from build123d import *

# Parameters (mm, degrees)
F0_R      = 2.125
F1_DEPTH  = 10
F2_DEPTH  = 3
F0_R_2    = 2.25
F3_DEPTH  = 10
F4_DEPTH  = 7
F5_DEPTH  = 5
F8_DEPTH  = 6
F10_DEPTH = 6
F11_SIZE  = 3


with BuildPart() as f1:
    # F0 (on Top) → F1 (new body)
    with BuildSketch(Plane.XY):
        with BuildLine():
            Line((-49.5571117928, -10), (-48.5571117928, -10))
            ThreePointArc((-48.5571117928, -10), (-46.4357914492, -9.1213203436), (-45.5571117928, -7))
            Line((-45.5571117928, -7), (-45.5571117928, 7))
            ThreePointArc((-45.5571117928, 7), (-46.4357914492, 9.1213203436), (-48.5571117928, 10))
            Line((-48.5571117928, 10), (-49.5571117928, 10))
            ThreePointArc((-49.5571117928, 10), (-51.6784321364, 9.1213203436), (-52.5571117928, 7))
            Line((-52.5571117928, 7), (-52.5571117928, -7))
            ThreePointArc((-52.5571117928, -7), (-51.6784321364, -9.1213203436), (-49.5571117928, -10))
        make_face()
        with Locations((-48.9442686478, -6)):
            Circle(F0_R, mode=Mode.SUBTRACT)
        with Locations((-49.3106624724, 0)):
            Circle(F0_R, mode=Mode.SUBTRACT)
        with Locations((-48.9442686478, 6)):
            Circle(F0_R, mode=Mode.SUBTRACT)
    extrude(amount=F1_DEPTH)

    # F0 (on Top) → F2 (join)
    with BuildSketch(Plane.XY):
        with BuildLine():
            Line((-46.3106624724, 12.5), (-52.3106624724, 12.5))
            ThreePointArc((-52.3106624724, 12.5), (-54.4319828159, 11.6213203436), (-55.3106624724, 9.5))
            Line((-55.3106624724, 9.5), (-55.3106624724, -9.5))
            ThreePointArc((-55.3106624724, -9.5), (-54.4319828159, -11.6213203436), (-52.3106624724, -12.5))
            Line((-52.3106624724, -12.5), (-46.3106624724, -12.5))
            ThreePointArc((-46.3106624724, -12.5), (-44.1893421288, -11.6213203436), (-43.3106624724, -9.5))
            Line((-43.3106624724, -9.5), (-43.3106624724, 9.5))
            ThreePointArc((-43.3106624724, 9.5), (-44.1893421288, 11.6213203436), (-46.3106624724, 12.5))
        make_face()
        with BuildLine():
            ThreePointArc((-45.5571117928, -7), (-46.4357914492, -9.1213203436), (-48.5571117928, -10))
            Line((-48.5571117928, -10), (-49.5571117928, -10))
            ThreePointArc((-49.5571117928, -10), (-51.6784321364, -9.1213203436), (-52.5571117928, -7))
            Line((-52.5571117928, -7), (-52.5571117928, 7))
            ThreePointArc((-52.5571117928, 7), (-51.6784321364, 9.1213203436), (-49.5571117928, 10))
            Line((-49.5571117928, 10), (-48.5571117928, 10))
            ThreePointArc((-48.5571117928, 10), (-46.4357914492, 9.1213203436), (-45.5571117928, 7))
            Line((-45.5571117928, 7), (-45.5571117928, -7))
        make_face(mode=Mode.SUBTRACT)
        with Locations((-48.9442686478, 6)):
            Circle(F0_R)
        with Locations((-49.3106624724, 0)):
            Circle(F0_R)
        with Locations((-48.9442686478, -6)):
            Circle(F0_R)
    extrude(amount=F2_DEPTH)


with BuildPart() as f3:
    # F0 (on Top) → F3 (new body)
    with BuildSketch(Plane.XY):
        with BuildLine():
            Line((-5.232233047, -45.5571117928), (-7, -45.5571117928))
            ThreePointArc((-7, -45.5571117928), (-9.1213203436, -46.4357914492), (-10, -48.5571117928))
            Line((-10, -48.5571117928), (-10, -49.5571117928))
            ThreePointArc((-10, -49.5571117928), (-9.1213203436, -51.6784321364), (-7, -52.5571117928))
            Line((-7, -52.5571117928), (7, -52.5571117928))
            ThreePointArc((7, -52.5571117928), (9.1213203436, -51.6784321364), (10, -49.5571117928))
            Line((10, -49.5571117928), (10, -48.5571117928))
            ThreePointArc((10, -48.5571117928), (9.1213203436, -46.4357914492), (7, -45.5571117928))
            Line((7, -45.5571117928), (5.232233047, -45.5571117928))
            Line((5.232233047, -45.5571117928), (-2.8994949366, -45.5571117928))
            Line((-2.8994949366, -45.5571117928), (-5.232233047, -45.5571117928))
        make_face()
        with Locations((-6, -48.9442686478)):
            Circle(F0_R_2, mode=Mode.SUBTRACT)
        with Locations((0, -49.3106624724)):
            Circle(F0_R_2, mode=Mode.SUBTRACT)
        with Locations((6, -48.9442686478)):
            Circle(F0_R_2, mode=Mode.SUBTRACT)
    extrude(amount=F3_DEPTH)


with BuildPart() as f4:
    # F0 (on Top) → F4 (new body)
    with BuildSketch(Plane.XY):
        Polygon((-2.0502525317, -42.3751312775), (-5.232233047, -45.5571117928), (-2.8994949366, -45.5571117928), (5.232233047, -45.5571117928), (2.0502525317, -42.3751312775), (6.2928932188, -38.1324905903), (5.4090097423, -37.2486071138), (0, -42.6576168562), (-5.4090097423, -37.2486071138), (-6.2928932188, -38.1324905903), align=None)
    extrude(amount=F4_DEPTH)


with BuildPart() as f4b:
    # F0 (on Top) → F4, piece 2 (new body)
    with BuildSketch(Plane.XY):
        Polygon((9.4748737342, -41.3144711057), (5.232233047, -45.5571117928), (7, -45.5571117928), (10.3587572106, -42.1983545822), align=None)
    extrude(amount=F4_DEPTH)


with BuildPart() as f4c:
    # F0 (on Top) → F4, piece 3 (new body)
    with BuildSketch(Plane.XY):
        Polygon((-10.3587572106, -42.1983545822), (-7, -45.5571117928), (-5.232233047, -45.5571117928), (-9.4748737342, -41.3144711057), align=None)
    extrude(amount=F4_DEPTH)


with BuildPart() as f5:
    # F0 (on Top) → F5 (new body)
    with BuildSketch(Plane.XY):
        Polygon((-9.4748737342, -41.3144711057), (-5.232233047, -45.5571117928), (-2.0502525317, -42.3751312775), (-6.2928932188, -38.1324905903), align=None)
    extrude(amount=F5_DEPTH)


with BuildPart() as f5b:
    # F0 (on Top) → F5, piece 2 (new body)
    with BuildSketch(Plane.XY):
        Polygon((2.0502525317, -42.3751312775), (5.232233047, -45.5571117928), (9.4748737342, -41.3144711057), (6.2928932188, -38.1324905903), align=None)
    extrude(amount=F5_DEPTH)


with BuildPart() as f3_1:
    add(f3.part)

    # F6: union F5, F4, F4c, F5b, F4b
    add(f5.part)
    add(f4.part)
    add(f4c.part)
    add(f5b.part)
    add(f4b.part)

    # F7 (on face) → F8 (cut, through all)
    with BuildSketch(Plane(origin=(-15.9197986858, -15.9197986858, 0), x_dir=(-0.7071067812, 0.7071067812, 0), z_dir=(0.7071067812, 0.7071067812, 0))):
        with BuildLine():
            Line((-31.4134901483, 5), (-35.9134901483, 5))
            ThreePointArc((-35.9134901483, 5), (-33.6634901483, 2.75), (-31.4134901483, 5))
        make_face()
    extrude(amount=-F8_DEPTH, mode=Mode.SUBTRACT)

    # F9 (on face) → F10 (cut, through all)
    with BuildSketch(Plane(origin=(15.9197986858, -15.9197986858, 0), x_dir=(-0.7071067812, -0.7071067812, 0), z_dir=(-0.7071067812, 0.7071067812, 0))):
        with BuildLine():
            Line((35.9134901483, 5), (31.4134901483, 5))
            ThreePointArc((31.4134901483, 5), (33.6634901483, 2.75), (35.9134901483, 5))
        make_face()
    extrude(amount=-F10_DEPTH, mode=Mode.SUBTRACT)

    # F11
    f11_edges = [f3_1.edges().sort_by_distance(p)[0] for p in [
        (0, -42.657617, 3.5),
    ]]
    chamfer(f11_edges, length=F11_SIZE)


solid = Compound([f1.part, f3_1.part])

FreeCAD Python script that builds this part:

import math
import FreeCAD as App
import Part
import Sketcher

V = App.Vector
Q = App.Units.Quantity


def edges_at(feature, points):
    """Names of the edges that pass closest to the given points."""
    edges = feature.Shape.Edges
    near = lambda p: min(range(len(edges)), key=lambda i: edges[i].distToShape(Part.Vertex(*p))[0])
    return sorted({f"Edge{near(p) + 1}" for p in points})


def add_polygon(sketch, points):
    """Adds a closed chain of lines whose ends are joined by coincident constraints."""
    first, n = sketch.GeometryCount, len(points)
    for a, b in zip(points, points[1:] + points[:1]):
        sketch.addGeometry(Part.LineSegment(App.Vector(*a, 0), App.Vector(*b, 0)), False)
    for i in range(n):
        sketch.addConstraint(Sketcher.Constraint("Coincident", first + i, 2, first + (i + 1) % n, 1))

doc = App.newDocument("Part")
body = doc.addObject("PartDesign::Body", "Body")

# Sketch on XY plane
sketch1 = doc.addObject("Sketcher::SketchObject", "Sketch")
body.addObject(sketch1)
sketch1.AttachmentSupport = (doc.XY_Plane, [""])
sketch1.MapMode = "FlatFace"
sketch1.addGeometry([
    Part.LineSegment(V(-49.6, -10, 0), V(-48.6, -10, 0)),  # 0
    Part.ArcOfCircle(Part.Circle(V(-48.6, -7, 0), V(0, 0, 1), 3), math.radians(-90), math.radians(0)),  # 1
    Part.LineSegment(V(-45.6, -7, 0), V(-45.6, 7, 0)),  # 2
    Part.ArcOfCircle(Part.Circle(V(-48.6, 7, 0), V(0, 0, 1), 3), math.radians(0), math.radians(90)),  # 3
    Part.LineSegment(V(-48.6, 10, 0), V(-49.6, 10, 0)),  # 4
    Part.ArcOfCircle(Part.Circle(V(-49.6, 7, 0), V(0, 0, 1), 3), math.radians(90), math.radians(180)),  # 5
    Part.LineSegment(V(-52.6, 7, 0), V(-52.6, -7, 0)),  # 6
    Part.ArcOfCircle(Part.Circle(V(-49.6, -7, 0), V(0, 0, 1), 3), math.radians(180), math.radians(270)),  # 7
    Part.Circle(V(-48.9, -6, 0), V(0, 0, 1), 2.1),  # 8
    Part.Circle(V(-49.3, 0, 0), V(0, 0, 1), 2.1),  # 9
    Part.Circle(V(-48.9, 6, 0), V(0, 0, 1), 2.1),  # 10
], False)
sketch1.addConstraint([
    Sketcher.Constraint("Tangent", 0, 2, 1, 1),
    Sketcher.Constraint("Tangent", 1, 2, 2, 1),
    Sketcher.Constraint("Tangent", 2, 2, 3, 1),
    Sketcher.Constraint("Tangent", 3, 2, 4, 1),
    Sketcher.Constraint("Tangent", 4, 2, 5, 1),
    Sketcher.Constraint("Tangent", 5, 2, 6, 1),
    Sketcher.Constraint("Tangent", 6, 2, 7, 1),
    Sketcher.Constraint("Tangent", 7, 2, 0, 1),
    Sketcher.Constraint("Horizontal", 0),
    Sketcher.Constraint("Vertical", 2),
    Sketcher.Constraint("Horizontal", 4),
    Sketcher.Constraint("Vertical", 6),
    Sketcher.Constraint("Equal", 1, 3),
    Sketcher.Constraint("Equal", 3, 5),
    Sketcher.Constraint("Equal", 5, 7),
    Sketcher.Constraint("Equal", 8, 9),
    Sketcher.Constraint("Equal", 9, 10),
    Sketcher.Constraint("Symmetric", 8, 3, 10, 3, -1),
    Sketcher.Constraint("PointOnObject", 9, 3, -1),
    Sketcher.Constraint("Radius", 1, Q("3 mm")),
    Sketcher.Constraint("Diameter", 8, Q("4.25 mm")),
    Sketcher.Constraint("DistanceX", 0, 1, 0, 2, Q("1 mm")),
    Sketcher.Constraint("DistanceY", 2, 1, 2, 2, Q("14 mm")),
    Sketcher.Constraint("DistanceY", 1, 3, -1, 1, Q("7 mm")),
    Sketcher.Constraint("DistanceY", 8, 3, -1, 1, Q("6 mm")),
    Sketcher.Constraint("DistanceX", 1, 3, -1, 1, Q("48.557112 mm")),
    Sketcher.Constraint("DistanceX", 8, 3, -1, 1, Q("48.944269 mm")),
    Sketcher.Constraint("DistanceX", 5, 3, 9, 3, Q("0.246449 mm")),
])
pad1 = doc.addObject("PartDesign::Pad", "Pad")
body.addObject(pad1)
pad1.Profile = sketch1
pad1.Length = 10

# Sketch on XY plane
sketch2 = doc.addObject("Sketcher::SketchObject", "Sketch001")
body.addObject(sketch2)
sketch2.AttachmentSupport = (doc.XY_Plane, [""])
sketch2.MapMode = "FlatFace"
sketch2.addGeometry([
    Part.LineSegment(V(-46.3, 12.5, 0), V(-52.3, 12.5, 0)),  # 0
    Part.ArcOfCircle(Part.Circle(V(-52.3, 9.5, 0), V(0, 0, 1), 3), math.radians(90), math.radians(180)),  # 1
    Part.LineSegment(V(-55.3, 9.5, 0), V(-55.3, -9.5, 0)),  # 2
    Part.ArcOfCircle(Part.Circle(V(-52.3, -9.5, 0), V(0, 0, 1), 3), math.radians(180), math.radians(270)),  # 3
    Part.LineSegment(V(-52.3, -12.5, 0), V(-46.3, -12.5, 0)),  # 4
    Part.ArcOfCircle(Part.Circle(V(-46.3, -9.5, 0), V(0, 0, 1), 3), math.radians(-90), math.radians(0)),  # 5
    Part.LineSegment(V(-43.3, -9.5, 0), V(-43.3, 9.5, 0)),  # 6
    Part.ArcOfCircle(Part.Circle(V(-46.3, 9.5, 0), V(0, 0, 1), 3), math.radians(0), math.radians(90)),  # 7
    Part.LineSegment(V(-45.6, 7, 0), V(-45.6, -7, 0)),  # 8
    Part.ArcOfCircle(Part.Circle(V(-48.6, -7, 0), V(0, 0, 1), 3), math.radians(-90), math.radians(0)),  # 9
    Part.LineSegment(V(-48.6, -10, 0), V(-49.6, -10, 0)),  # 10
    Part.ArcOfCircle(Part.Circle(V(-49.6, -7, 0), V(0, 0, 1), 3), math.radians(180), math.radians(270)),  # 11
    Part.LineSegment(V(-52.6, -7, 0), V(-52.6, 7, 0)),  # 12
    Part.ArcOfCircle(Part.Circle(V(-49.6, 7, 0), V(0, 0, 1), 3), math.radians(90), math.radians(180)),  # 13
    Part.LineSegment(V(-49.6, 10, 0), V(-48.6, 10, 0)),  # 14
    Part.ArcOfCircle(Part.Circle(V(-48.6, 7, 0), V(0, 0, 1), 3), math.radians(0), math.radians(90)),  # 15
    Part.Circle(V(-48.9, 6, 0), V(0, 0, 1), 2.1),  # 16
    Part.Circle(V(-49.3, 0, 0), V(0, 0, 1), 2.1),  # 17
    Part.Circle(V(-48.9, -6, 0), V(0, 0, 1), 2.1),  # 18
], False)
sketch2.addConstraint([
    Sketcher.Constraint("Tangent", 0, 2, 1, 1),
    Sketcher.Constraint("Tangent", 1, 2, 2, 1),
    Sketcher.Constraint("Tangent", 2, 2, 3, 1),
    Sketcher.Constraint("Tangent", 3, 2, 4, 1),
    Sketcher.Constraint("Tangent", 4, 2, 5, 1),
    Sketcher.Constraint("Tangent", 5, 2, 6, 1),
    Sketcher.Constraint("Tangent", 6, 2, 7, 1),
    Sketcher.Constraint("Tangent", 7, 2, 0, 1),
    Sketcher.Constraint("Tangent", 8, 2, 9, 2),
    Sketcher.Constraint("Tangent", 9, 1, 10, 1),
    Sketcher.Constraint("Tangent", 10, 2, 11, 2),
    Sketcher.Constraint("Tangent", 11, 1, 12, 1),
    Sketcher.Constraint("Tangent", 12, 2, 13, 2),
    Sketcher.Constraint("Tangent", 13, 1, 14, 1),
    Sketcher.Constraint("Tangent", 14, 2, 15, 2),
    Sketcher.Constraint("Tangent", 15, 1, 8, 1),
    Sketcher.Constraint("Horizontal", 0),
    Sketcher.Constraint("Vertical", 2),
    Sketcher.Constraint("Horizontal", 4),
    Sketcher.Constraint("Vertical", 6),
    Sketcher.Constraint("Vertical", 8),
    Sketcher.Constraint("Horizontal", 10),
    Sketcher.Constraint("Vertical", 12),
    Sketcher.Constraint("Horizontal", 14),
    Sketcher.Constraint("Equal", 1, 3),
    Sketcher.Constraint("Equal", 3, 5),
    Sketcher.Constraint("Equal", 5, 7),
    Sketcher.Constraint("Equal", 7, 9),
    Sketcher.Constraint("Equal", 9, 11),
    Sketcher.Constraint("Equal", 11, 13),
    Sketcher.Constraint("Equal", 13, 15),
    Sketcher.Constraint("Equal", 16, 17),
    Sketcher.Constraint("Equal", 17, 18),
    Sketcher.Constraint("Symmetric", 16, 3, 18, 3, -1),
    Sketcher.Constraint("PointOnObject", 17, 3, -1),
    Sketcher.Constraint("Radius", 1, Q("3 mm")),
    Sketcher.Constraint("Diameter", 16, Q("4.25 mm")),
    Sketcher.Constraint("DistanceX", 0, 2, 0, 1, Q("6 mm")),
    Sketcher.Constraint("DistanceX", 10, 2, 10, 1, Q("1 mm")),
    Sketcher.Constraint("DistanceY", 2, 2, 2, 1, Q("19 mm")),
    Sketcher.Constraint("DistanceY", 8, 2, 8, 1, Q("14 mm")),
    Sketcher.Constraint("DistanceY", 9, 3, -1, 1, Q("7 mm")),
    Sketcher.Constraint("DistanceY", -1, 1, 16, 3, Q("6 mm")),
    Sketcher.Constraint("DistanceY", -1, 1, 1, 3, Q("9.5 mm")),
    Sketcher.Constraint("DistanceX", 9, 3, -1, 1, Q("48.557112 mm")),
    Sketcher.Constraint("DistanceX", 16, 3, -1, 1, Q("48.944269 mm")),
    Sketcher.Constraint("DistanceX", 9, 3, 5, 3, Q("2.246449 mm")),
    Sketcher.Constraint("DistanceX", 11, 3, 17, 3, Q("0.246449 mm")),
])
pad2 = doc.addObject("PartDesign::Pad", "Pad001")
body.addObject(pad2)
pad2.Profile = sketch2
pad2.Length = 3
body2 = doc.addObject("PartDesign::Body", "Body001")

# Sketch on XY plane
sketch3 = doc.addObject("Sketcher::SketchObject", "Sketch002")
body2.addObject(sketch3)
sketch3.AttachmentSupport = (doc.getObject("XY_Plane001"), [""])
sketch3.MapMode = "FlatFace"
sketch3.addGeometry([
    Part.ArcOfCircle(Part.Circle(V(-7, -48.6, 0), V(0, 0, 1), 3), math.radians(90), math.radians(180)),  # 0
    Part.LineSegment(V(-10, -48.6, 0), V(-10, -49.6, 0)),  # 1
    Part.ArcOfCircle(Part.Circle(V(-7, -49.6, 0), V(0, 0, 1), 3), math.radians(180), math.radians(270)),  # 2
    Part.LineSegment(V(-7, -52.6, 0), V(7, -52.6, 0)),  # 3
    Part.ArcOfCircle(Part.Circle(V(7, -49.6, 0), V(0, 0, 1), 3), math.radians(-90), math.radians(0)),  # 4
    Part.LineSegment(V(10, -49.6, 0), V(10, -48.6, 0)),  # 5
    Part.ArcOfCircle(Part.Circle(V(7, -48.6, 0), V(0, 0, 1), 3), math.radians(0), math.radians(90)),  # 6
    Part.LineSegment(V(7, -45.6, 0), V(-7, -45.6, 0)),  # 7
    Part.Circle(V(0, -49.3, 0), V(0, 0, 1), 2.2),  # 8
    Part.Circle(V(-6, -48.9, 0), V(0, 0, 1), 2.2),  # 9
    Part.Circle(V(6, -48.9, 0), V(0, 0, 1), 2.2),  # 10
], False)
sketch3.addConstraint([
    Sketcher.Constraint("Tangent", 0, 2, 1, 1),
    Sketcher.Constraint("Tangent", 1, 2, 2, 1),
    Sketcher.Constraint("Tangent", 2, 2, 3, 1),
    Sketcher.Constraint("Tangent", 3, 2, 4, 1),
    Sketcher.Constraint("Tangent", 4, 2, 5, 1),
    Sketcher.Constraint("Tangent", 5, 2, 6, 1),
    Sketcher.Constraint("Tangent", 6, 2, 7, 1),
    Sketcher.Constraint("Tangent", 7, 2, 0, 1),
    Sketcher.Constraint("Vertical", 1),
    Sketcher.Constraint("Horizontal", 3),
    Sketcher.Constraint("Vertical", 5),
    Sketcher.Constraint("Horizontal", 7),
    Sketcher.Constraint("Equal", 0, 2),
    Sketcher.Constraint("Equal", 2, 4),
    Sketcher.Constraint("Equal", 4, 6),
    Sketcher.Constraint("Equal", 8, 9),
    Sketcher.Constraint("Equal", 9, 10),
    Sketcher.Constraint("Symmetric", 9, 3, 10, 3, -2),
    Sketcher.Constraint("PointOnObject", 8, 3, -2),
    Sketcher.Constraint("Radius", 0, Q("3 mm")),
    Sketcher.Constraint("Diameter", 8, Q("4.5 mm")),
    Sketcher.Constraint("DistanceX", 3, 1, 3, 2, Q("14 mm")),
    Sketcher.Constraint("DistanceY", 1, 2, 1, 1, Q("1 mm")),
    Sketcher.Constraint("DistanceX", 0, 3, -1, 1, Q("7 mm")),
    Sketcher.Constraint("DistanceX", 9, 3, -1, 1, Q("6 mm")),
    Sketcher.Constraint("DistanceY", 0, 3, -1, 1, Q("48.557112 mm")),
    Sketcher.Constraint("DistanceY", 9, 3, -1, 1, Q("48.944269 mm")),
    Sketcher.Constraint("DistanceY", 2, 3, 8, 3, Q("0.246449 mm")),
])
pad3 = doc.addObject("PartDesign::Pad", "Pad002")
body2.addObject(pad3)
pad3.Profile = sketch3
pad3.Length = 10
body3 = doc.addObject("PartDesign::Body", "Body002")

# Sketch on XY plane
sketch4 = doc.addObject("Sketcher::SketchObject", "Sketch003")
body3.addObject(sketch4)
sketch4.AttachmentSupport = (doc.getObject("XY_Plane002"), [""])
sketch4.MapMode = "FlatFace"
add_polygon(sketch4, [(-2.1, -42.4), (-5.2, -45.6), (5.2, -45.6), (2.1, -42.4), (6.3, -38.1), (5.4, -37.2), (0, -42.7), (-5.4, -37.2), (-6.3, -38.1)])  # lines 0-8
sketch4.addConstraint([
    Sketcher.Constraint("Horizontal", 1),
    Sketcher.Constraint("Symmetric", 4, 2, 6, 2, -2),
    Sketcher.Constraint("Symmetric", 3, 2, 7, 2, -2),
    Sketcher.Constraint("Symmetric", 2, 2, 8, 2, -2),
    Sketcher.Constraint("PointOnObject", 5, 2, -2),
    Sketcher.Constraint("Perpendicular", 0, 2),
    Sketcher.Constraint("Perpendicular", 2, 3),
    Sketcher.Constraint("Perpendicular", 3, 4),
    Sketcher.Constraint("Perpendicular", 4, 5),
    Sketcher.Constraint("Perpendicular", 5, 6),
    Sketcher.Constraint("Distance", 3, Q("6 mm")),
    Sketcher.Constraint("Distance", 0, Q("4.5 mm")),
    Sketcher.Constraint("Distance", 4, Q("1.25 mm")),
    Sketcher.Constraint("DistanceX", 1, 1, 1, 2, Q("10.464466 mm")),
    Sketcher.Constraint("DistanceY", 0, 2, -1, 1, Q("45.557112 mm")),
])
pad4 = doc.addObject("PartDesign::Pad", "Pad003")
body3.addObject(pad4)
pad4.Profile = sketch4
pad4.Length = 7
body4 = doc.addObject("PartDesign::Body", "Body003")

# Sketch on XY plane
sketch5 = doc.addObject("Sketcher::SketchObject", "Sketch004")
body4.addObject(sketch5)
sketch5.AttachmentSupport = (doc.getObject("XY_Plane003"), [""])
sketch5.MapMode = "FlatFace"
add_polygon(sketch5, [(9.5, -41.3), (5.2, -45.6), (7, -45.6), (10.4, -42.2)])  # lines 0-3
sketch5.addConstraint([
    Sketcher.Constraint("Horizontal", 1),
    Sketcher.Constraint("Parallel", 0, 2),
    Sketcher.Constraint("Perpendicular", 2, 3),
    Sketcher.Constraint("Angle", 0, Q("-135 deg")),
    Sketcher.Constraint("Distance", 0, Q("6 mm")),
    Sketcher.Constraint("DistanceX", -1, 1, 1, 2, Q("7 mm")),
    Sketcher.Constraint("Distance", 2, Q("4.75 mm")),
    Sketcher.Constraint("DistanceY", 0, 2, -1, 1, Q("45.557112 mm")),
])
pad5 = doc.addObject("PartDesign::Pad", "Pad004")
body4.addObject(pad5)
pad5.Profile = sketch5
pad5.Length = 7
body5 = doc.addObject("PartDesign::Body", "Body004")

# Sketch on XY plane
sketch6 = doc.addObject("Sketcher::SketchObject", "Sketch005")
body5.addObject(sketch6)
sketch6.AttachmentSupport = (doc.getObject("XY_Plane004"), [""])
sketch6.MapMode = "FlatFace"
add_polygon(sketch6, [(-10.4, -42.2), (-7, -45.6), (-5.2, -45.6), (-9.5, -41.3)])  # lines 0-3
sketch6.addConstraint([
    Sketcher.Constraint("Horizontal", 1),
    Sketcher.Constraint("Parallel", 0, 2),
    Sketcher.Constraint("Perpendicular", 2, 3),
    Sketcher.Constraint("Angle", 0, Q("-45 deg")),
    Sketcher.Constraint("Distance", 2, Q("6 mm")),
    Sketcher.Constraint("DistanceX", 0, 2, -1, 1, Q("7 mm")),
    Sketcher.Constraint("Distance", 0, Q("4.75 mm")),
    Sketcher.Constraint("DistanceY", 0, 2, -1, 1, Q("45.557112 mm")),
])
pad6 = doc.addObject("PartDesign::Pad", "Pad005")
body5.addObject(pad6)
pad6.Profile = sketch6
pad6.Length = 7
body6 = doc.addObject("PartDesign::Body", "Body005")

# Sketch on XY plane
sketch7 = doc.addObject("Sketcher::SketchObject", "Sketch006")
body6.addObject(sketch7)
sketch7.AttachmentSupport = (doc.getObject("XY_Plane005"), [""])
sketch7.MapMode = "FlatFace"
add_polygon(sketch7, [(-9.5, -41.3), (-5.2, -45.6), (-2.1, -42.4), (-6.3, -38.1)])  # lines 0-3
sketch7.addConstraint([
    Sketcher.Constraint("Perpendicular", 0, 1),
    Sketcher.Constraint("Perpendicular", 1, 2),
    Sketcher.Constraint("Perpendicular", 2, 3),
    Sketcher.Constraint("Angle", 0, Q("-45 deg")),
    Sketcher.Constraint("Distance", 0, Q("6 mm")),
    Sketcher.Constraint("Distance", 1, Q("4.5 mm")),
    Sketcher.Constraint("DistanceY", 0, 2, -1, 1, Q("45.557112 mm")),
    Sketcher.Constraint("DistanceX", 0, 2, -1, 1, Q("5.232233 mm")),
])
pad7 = doc.addObject("PartDesign::Pad", "Pad006")
body6.addObject(pad7)
pad7.Profile = sketch7
pad7.Length = 5
body7 = doc.addObject("PartDesign::Body", "Body006")

# Sketch on XY plane
sketch8 = doc.addObject("Sketcher::SketchObject", "Sketch007")
body7.addObject(sketch8)
sketch8.AttachmentSupport = (doc.getObject("XY_Plane006"), [""])
sketch8.MapMode = "FlatFace"
add_polygon(sketch8, [(2.1, -42.4), (5.2, -45.6), (9.5, -41.3), (6.3, -38.1)])  # lines 0-3
sketch8.addConstraint([
    Sketcher.Constraint("Perpendicular", 0, 1),
    Sketcher.Constraint("Perpendicular", 1, 2),
    Sketcher.Constraint("Perpendicular", 2, 3),
    Sketcher.Constraint("Angle", 0, Q("-45 deg")),
    Sketcher.Constraint("Distance", 1, Q("6 mm")),
    Sketcher.Constraint("Distance", 0, Q("4.5 mm")),
    Sketcher.Constraint("DistanceY", 0, 2, -1, 1, Q("45.557112 mm")),
    Sketcher.Constraint("DistanceX", -1, 1, 0, 2, Q("5.232233 mm")),
])
pad8 = doc.addObject("PartDesign::Pad", "Pad007")
body7.addObject(pad8)
pad8.Profile = sketch8
pad8.Length = 5
body2.AllowCompound = True
doc.recompute()

boolean = doc.addObject("PartDesign::Boolean", "Boolean")
body2.addObject(boolean)
boolean.Type = "Fuse"
boolean.addObjects([body6])
doc.recompute()

boolean2 = doc.addObject("PartDesign::Boolean", "Boolean001")
body2.addObject(boolean2)
boolean2.Type = "Fuse"
boolean2.addObjects([body3])
doc.recompute()

boolean3 = doc.addObject("PartDesign::Boolean", "Boolean002")
body2.addObject(boolean3)
boolean3.Type = "Fuse"
boolean3.addObjects([body5])
doc.recompute()

boolean4 = doc.addObject("PartDesign::Boolean", "Boolean003")
body2.addObject(boolean4)
boolean4.Type = "Fuse"
boolean4.addObjects([body7])
doc.recompute()

boolean5 = doc.addObject("PartDesign::Boolean", "Boolean004")
body2.addObject(boolean5)
boolean5.Type = "Fuse"
boolean5.addObjects([body4])

# Sketch on an angled plane
sketch9 = doc.addObject("Sketcher::SketchObject", "Sketch008")
body2.addObject(sketch9)
sketch9.Placement = App.Placement(V(-15.919799, -15.919799, 0), App.Rotation(V(-0.707106781, 0.707106781, 0), V(0, 0, 0.999999999), V(0.707106781, 0.707106781, 0), "ZXY"))
sketch9.addGeometry([
    Part.LineSegment(V(-31.4, 5, 0), V(-35.9, 5, 0)),
    Part.ArcOfCircle(Part.Circle(V(-33.7, 5, 0), V(0, 0, 1), 2.2), math.radians(180), math.radians(360)),
], False)
sketch9.addConstraint([
    Sketcher.Constraint("Coincident", 0, 1, 1, 2),
    Sketcher.Constraint("Coincident", 1, 1, 0, 2),
    Sketcher.Constraint("Horizontal", 0),
    Sketcher.Constraint("Horizontal", 1, 3, 0, 1),
    Sketcher.Constraint("Radius", 1, Q("2.25 mm")),
    Sketcher.Constraint("DistanceY", -1, 1, 1, 3, Q("5 mm")),
    Sketcher.Constraint("DistanceX", 1, 3, -1, 1, Q("33.66349 mm")),
])
pocket1 = doc.addObject("PartDesign::Pocket", "Pocket")
body2.addObject(pocket1)
pocket1.Profile = sketch9
pocket1.Length = 6

# Sketch on an angled plane
sketch10 = doc.addObject("Sketcher::SketchObject", "Sketch009")
body2.addObject(sketch10)
sketch10.Placement = App.Placement(V(15.919799, -15.919799, 0), App.Rotation(V(-0.707106781, -0.707106781, 0), V(0, 0, 0.999999999), V(-0.707106781, 0.707106781, 0), "ZXY"))
sketch10.addGeometry([
    Part.LineSegment(V(35.9, 5, 0), V(31.4, 5, 0)),
    Part.ArcOfCircle(Part.Circle(V(33.7, 5, 0), V(0, 0, 1), 2.2), math.radians(180), math.radians(360)),
], False)
sketch10.addConstraint([
    Sketcher.Constraint("Coincident", 0, 1, 1, 2),
    Sketcher.Constraint("Coincident", 1, 1, 0, 2),
    Sketcher.Constraint("Horizontal", 0),
    Sketcher.Constraint("Horizontal", 1, 3, 0, 1),
    Sketcher.Constraint("Radius", 1, Q("2.25 mm")),
    Sketcher.Constraint("DistanceY", -1, 1, 1, 3, Q("5 mm")),
    Sketcher.Constraint("DistanceX", -1, 1, 1, 3, Q("33.66349 mm")),
])
pocket2 = doc.addObject("PartDesign::Pocket", "Pocket001")
body2.addObject(pocket2)
pocket2.Profile = sketch10
pocket2.Length = 6
doc.recompute()

chamfer = doc.addObject("PartDesign::Chamfer", "Chamfer")
body2.addObject(chamfer)
chamfer.Base = (pocket2, edges_at(pocket2, [(0, -42.658, 3.5)]))
chamfer.Size = 3

doc.recompute()
